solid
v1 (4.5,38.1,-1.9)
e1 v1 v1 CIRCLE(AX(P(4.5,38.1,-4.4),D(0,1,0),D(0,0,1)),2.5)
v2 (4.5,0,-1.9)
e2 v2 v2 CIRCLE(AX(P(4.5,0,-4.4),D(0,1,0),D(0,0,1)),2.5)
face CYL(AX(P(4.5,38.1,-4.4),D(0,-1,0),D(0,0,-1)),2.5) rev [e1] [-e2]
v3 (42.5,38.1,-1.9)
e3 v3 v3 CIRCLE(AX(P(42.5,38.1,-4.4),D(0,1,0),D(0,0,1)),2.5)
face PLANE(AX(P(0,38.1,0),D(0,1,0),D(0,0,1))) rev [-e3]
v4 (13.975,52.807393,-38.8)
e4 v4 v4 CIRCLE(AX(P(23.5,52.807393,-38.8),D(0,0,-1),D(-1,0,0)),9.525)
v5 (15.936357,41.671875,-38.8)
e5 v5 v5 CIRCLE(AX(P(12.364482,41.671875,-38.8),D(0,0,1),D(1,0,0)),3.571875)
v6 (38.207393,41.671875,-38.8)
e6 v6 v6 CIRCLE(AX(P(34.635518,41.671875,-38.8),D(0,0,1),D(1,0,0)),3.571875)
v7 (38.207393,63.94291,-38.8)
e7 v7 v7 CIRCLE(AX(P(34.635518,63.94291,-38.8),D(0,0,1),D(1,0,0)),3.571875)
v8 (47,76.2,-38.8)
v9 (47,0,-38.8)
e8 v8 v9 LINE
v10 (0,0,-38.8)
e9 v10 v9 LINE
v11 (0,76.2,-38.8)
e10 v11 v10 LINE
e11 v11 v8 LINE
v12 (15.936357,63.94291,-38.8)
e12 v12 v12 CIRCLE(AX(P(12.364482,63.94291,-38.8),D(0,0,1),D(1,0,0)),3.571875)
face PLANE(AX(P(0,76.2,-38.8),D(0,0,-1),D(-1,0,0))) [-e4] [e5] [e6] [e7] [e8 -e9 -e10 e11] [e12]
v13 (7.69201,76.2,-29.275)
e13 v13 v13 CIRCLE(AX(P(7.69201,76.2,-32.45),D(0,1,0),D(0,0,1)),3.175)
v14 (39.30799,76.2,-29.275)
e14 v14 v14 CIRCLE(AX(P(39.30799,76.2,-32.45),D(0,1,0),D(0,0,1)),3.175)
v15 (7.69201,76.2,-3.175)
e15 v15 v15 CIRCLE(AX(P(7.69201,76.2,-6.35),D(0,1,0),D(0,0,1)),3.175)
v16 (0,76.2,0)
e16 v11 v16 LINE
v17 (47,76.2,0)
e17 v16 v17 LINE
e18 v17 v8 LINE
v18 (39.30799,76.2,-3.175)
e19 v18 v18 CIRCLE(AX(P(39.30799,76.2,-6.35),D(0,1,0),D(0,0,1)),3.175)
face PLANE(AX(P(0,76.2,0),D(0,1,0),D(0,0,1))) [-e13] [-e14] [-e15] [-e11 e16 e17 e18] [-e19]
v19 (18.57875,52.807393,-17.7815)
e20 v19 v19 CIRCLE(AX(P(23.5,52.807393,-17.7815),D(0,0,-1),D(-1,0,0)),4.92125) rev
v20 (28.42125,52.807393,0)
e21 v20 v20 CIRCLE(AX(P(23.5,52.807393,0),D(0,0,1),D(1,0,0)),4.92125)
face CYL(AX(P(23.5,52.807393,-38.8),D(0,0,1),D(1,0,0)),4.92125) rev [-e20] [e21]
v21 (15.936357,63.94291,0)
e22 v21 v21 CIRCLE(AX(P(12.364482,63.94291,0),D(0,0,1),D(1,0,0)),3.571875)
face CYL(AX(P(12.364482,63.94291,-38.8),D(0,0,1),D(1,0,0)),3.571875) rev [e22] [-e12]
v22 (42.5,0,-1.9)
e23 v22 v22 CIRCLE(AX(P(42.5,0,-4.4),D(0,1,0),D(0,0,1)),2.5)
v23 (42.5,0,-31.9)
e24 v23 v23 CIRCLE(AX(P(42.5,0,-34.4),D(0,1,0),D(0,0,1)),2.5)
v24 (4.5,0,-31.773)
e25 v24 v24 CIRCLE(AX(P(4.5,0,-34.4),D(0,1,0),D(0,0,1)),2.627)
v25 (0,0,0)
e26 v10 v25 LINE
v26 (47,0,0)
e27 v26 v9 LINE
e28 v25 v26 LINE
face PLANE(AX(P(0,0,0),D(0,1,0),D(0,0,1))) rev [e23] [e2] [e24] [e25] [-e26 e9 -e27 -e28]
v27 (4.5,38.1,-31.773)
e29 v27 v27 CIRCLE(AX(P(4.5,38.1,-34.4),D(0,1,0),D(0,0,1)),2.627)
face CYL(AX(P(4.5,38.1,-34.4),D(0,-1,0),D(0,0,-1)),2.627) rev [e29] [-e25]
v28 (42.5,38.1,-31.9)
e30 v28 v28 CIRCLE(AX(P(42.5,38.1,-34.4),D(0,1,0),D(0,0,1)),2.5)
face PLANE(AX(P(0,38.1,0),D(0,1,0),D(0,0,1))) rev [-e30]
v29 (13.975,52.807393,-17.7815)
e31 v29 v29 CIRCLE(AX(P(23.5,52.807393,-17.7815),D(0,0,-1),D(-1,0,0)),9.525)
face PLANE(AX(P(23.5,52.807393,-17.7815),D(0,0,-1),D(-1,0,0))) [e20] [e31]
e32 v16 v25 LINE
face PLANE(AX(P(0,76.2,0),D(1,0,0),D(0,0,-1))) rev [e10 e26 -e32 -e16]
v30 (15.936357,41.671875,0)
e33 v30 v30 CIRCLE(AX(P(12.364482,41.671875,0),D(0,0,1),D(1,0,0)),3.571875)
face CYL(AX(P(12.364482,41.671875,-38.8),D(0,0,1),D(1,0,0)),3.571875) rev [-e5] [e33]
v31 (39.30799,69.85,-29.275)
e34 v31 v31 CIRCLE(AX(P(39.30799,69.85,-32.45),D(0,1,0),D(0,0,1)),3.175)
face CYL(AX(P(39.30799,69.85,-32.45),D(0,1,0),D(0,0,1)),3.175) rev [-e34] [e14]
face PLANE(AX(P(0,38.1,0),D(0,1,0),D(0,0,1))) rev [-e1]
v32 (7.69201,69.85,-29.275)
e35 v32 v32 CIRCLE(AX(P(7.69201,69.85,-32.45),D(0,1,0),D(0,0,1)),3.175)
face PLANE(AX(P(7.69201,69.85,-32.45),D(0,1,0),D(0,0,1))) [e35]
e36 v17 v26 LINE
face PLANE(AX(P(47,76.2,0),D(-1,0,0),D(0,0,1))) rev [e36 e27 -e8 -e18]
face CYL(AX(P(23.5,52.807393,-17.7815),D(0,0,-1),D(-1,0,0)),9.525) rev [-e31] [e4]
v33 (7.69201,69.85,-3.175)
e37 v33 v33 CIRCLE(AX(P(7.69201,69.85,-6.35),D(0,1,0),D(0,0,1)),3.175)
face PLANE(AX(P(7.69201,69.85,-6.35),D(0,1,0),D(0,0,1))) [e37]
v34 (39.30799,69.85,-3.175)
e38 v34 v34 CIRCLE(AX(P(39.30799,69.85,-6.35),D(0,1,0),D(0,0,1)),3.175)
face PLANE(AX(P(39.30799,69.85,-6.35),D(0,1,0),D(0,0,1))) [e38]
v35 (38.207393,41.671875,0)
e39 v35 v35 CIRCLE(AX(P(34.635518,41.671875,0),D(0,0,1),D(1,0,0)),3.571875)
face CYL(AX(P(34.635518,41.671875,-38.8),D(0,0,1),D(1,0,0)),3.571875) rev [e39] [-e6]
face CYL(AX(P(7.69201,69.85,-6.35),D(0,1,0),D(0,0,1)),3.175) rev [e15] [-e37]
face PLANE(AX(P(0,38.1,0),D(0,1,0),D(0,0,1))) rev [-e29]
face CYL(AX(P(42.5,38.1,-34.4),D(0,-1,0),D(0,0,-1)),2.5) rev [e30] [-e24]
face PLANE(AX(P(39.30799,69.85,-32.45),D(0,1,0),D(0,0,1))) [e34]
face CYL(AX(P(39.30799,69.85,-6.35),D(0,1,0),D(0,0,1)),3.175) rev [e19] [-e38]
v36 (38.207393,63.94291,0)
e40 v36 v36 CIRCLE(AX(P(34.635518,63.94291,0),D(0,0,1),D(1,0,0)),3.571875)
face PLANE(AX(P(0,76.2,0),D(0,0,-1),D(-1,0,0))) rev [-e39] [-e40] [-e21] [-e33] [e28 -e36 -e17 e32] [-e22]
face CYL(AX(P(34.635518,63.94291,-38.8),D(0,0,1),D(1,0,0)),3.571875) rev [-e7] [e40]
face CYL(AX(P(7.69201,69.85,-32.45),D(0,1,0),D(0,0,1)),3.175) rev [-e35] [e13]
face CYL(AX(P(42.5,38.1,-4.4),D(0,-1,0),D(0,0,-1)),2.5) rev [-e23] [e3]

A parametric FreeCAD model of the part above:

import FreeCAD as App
import Part
import Sketcher
Q = App.Units.Quantity


def add_polygon(sketch, points):
    """Adds a closed chain of lines whose ends are joined by coincident constraints."""
    first, n = sketch.GeometryCount, len(points)
    for a, b in zip(points, points[1:] + points[:1]):
        sketch.addGeometry(Part.LineSegment(App.Vector(*a, 0), App.Vector(*b, 0)), False)
    for i in range(n):
        sketch.addConstraint(Sketcher.Constraint("Coincident", first + i, 2, first + (i + 1) % n, 1))

doc = App.newDocument("Part")
body = doc.addObject("PartDesign::Body", "Body")

# Sketch on XZ plane
sketch1 = doc.addObject("Sketcher::SketchObject", "Sketch")
body.addObject(sketch1)
sketch1.AttachmentSupport = (doc.XZ_Plane, [""])
sketch1.MapMode = "FlatFace"
add_polygon(sketch1, [(0, -38.8), (0, 0), (47, 0), (47, -38.8)])  # lines 0-3
sketch1.addConstraint(Sketcher.Constraint("Vertical", 0))
sketch1.addConstraint(Sketcher.Constraint("Horizontal", 1))
sketch1.addConstraint(Sketcher.Constraint("Vertical", 2))
sketch1.addConstraint(Sketcher.Constraint("Horizontal", 3))
sketch1.addConstraint(Sketcher.Constraint("Coincident", 0, 2, -1, 1))
sketch1.addConstraint(Sketcher.Constraint("DistanceX", 1, 1, 1, 2, 47.0))
sketch1.addConstraint(Sketcher.Constraint("DistanceY", 0, 1, 0, 2, 38.8))
pad1 = doc.addObject("PartDesign::Pad", "Pad")
body.addObject(pad1)
pad1.Profile = sketch1
pad1.Length = Q("3 in")
pad1.Reversed = True

# Sketch on XY plane
sketch2 = doc.addObject("Sketcher::SketchObject", "Sketch001")
body.addObject(sketch2)
sketch2.AttachmentSupport = (doc.XY_Plane, [""])
sketch2.MapMode = "FlatFace"
sketch2.addGeometry(Part.Circle(App.Vector(12.364482, 63.94291, 0), App.Vector(0, 0, 1), 3.571875), False)
sketch2.addGeometry(Part.Circle(App.Vector(34.635518, 63.94291, 0), App.Vector(0, 0, 1), 3.571875), False)
sketch2.addGeometry(Part.Circle(App.Vector(34.635518, 41.671875, 0), App.Vector(0, 0, 1), 3.571875), False)
sketch2.addGeometry(Part.Circle(App.Vector(23.5, 52.807393, 0), App.Vector(0, 0, 1), 4.92125), False)
sketch2.addGeometry(Part.Circle(App.Vector(12.364482, 41.671875, 0), App.Vector(0, 0, 1), 3.571875), False)
sketch2.addConstraint(Sketcher.Constraint("Equal", 0, 1))
sketch2.addConstraint(Sketcher.Constraint("Equal", 1, 2))
sketch2.addConstraint(Sketcher.Constraint("Equal", 2, 4))
sketch2.addConstraint(Sketcher.Constraint("Horizontal", 0, 3, 1, 3))
sketch2.addConstraint(Sketcher.Constraint("Horizontal", 2, 3, 4, 3))
sketch2.addConstraint(Sketcher.Constraint("Vertical", 1, 3, 2, 3))
sketch2.addConstraint(Sketcher.Constraint("Vertical", 0, 3, 4, 3))
sketch2.addConstraint(Sketcher.Constraint("Diameter", 0, Q("0.28125 in")))
sketch2.addConstraint(Sketcher.Constraint("Diameter", 3, Q("0.3875 in")))
sketch2.addConstraint(Sketcher.Constraint("DistanceY", -1, 1, 2, 3, Q("1.640625 in")))
sketch2.addConstraint(Sketcher.Constraint("DistanceX", -1, 1, 3, 3, 23.5))
sketch2.addConstraint(Sketcher.Constraint("DistanceY", -1, 1, 0, 3, 63.94291))
sketch2.addConstraint(Sketcher.Constraint("DistanceX", -1, 1, 0, 3, 12.364482))
sketch2.addConstraint(Sketcher.Constraint("DistanceX", -1, 1, 1, 3, 34.635518))
sketch2.addConstraint(Sketcher.Constraint("DistanceY", -1, 1, 3, 3, 52.807393))
pocket1 = doc.addObject("PartDesign::Pocket", "Pocket")
body.addObject(pocket1)
pocket1.Profile = sketch2
pocket1.Type = "ThroughAll"

# Sketch on XZ plane
sketch3 = doc.addObject("Sketcher::SketchObject", "Sketch002")
body.addObject(sketch3)
sketch3.AttachmentSupport = (doc.XZ_Plane, [""])
sketch3.MapMode = "FlatFace"
sketch3.addGeometry(Part.Circle(App.Vector(4.5, -34.4, 0), App.Vector(0, 0, 1), 2.627), False)
sketch3.addGeometry(Part.Circle(App.Vector(4.5, -4.4, 0), App.Vector(0, 0, 1), 2.5), False)
sketch3.addGeometry(Part.Circle(App.Vector(42.5, -4.4, 0), App.Vector(0, 0, 1), 2.5), False)
sketch3.addGeometry(Part.Circle(App.Vector(42.5, -34.4, 0), App.Vector(0, 0, 1), 2.5), False)
sketch3.addConstraint(Sketcher.Constraint("Equal", 1, 2))
sketch3.addConstraint(Sketcher.Constraint("Equal", 2, 3))
sketch3.addConstraint(Sketcher.Constraint("Horizontal", 1, 3, 2, 3))
sketch3.addConstraint(Sketcher.Constraint("Horizontal", 0, 3, 3, 3))
sketch3.addConstraint(Sketcher.Constraint("Vertical", 0, 3, 1, 3))
sketch3.addConstraint(Sketcher.Constraint("Vertical", 2, 3, 3, 3))
sketch3.addConstraint(Sketcher.Constraint("Diameter", 0, 5.254))
sketch3.addConstraint(Sketcher.Constraint("Diameter", 1, 5.0))
sketch3.addConstraint(Sketcher.Constraint("DistanceX", -1, 1, 0, 3, 4.5))
sketch3.addConstraint(Sketcher.Constraint("DistanceY", 0, 3, -1, 1, 34.4))
sketch3.addConstraint(Sketcher.Constraint("DistanceY", 1, 3, -1, 1, 4.4))
sketch3.addConstraint(Sketcher.Constraint("DistanceX", -1, 1, 2, 3, 42.5))
pocket2 = doc.addObject("PartDesign::Pocket", "Pocket001")
body.addObject(pocket2)
pocket2.Profile = sketch3
pocket2.Length = Q("1.5 in")

# Sketch on XY plane
sketch4 = doc.addObject("Sketcher::SketchObject", "Sketch003")
body.addObject(sketch4)
sketch4.AttachmentSupport = (doc.XY_Plane, [""])
sketch4.MapMode = "FlatFace"
sketch4.AttachmentOffset = App.Placement(App.Vector(0, 0, -38.8), App.Rotation())
sketch4.addGeometry(Part.Circle(App.Vector(23.5, 52.807393, 0), App.Vector(0, 0, 1), 9.525), False)
sketch4.addConstraint(Sketcher.Constraint("Diameter", 0, Q("0.75 in")))
sketch4.addConstraint(Sketcher.Constraint("DistanceX", -1, 1, 0, 3, 23.5))
sketch4.addConstraint(Sketcher.Constraint("DistanceY", -1, 1, 0, 3, 52.807393))
pocket3 = doc.addObject("PartDesign::Pocket", "Pocket002")
body.addObject(pocket3)
pocket3.Profile = sketch4
pocket3.Length = Q("0.8275 in")
pocket3.Reversed = True

# Sketch on XZ plane
sketch5 = doc.addObject("Sketcher::SketchObject", "Sketch004")
body.addObject(sketch5)
sketch5.AttachmentSupport = (doc.XZ_Plane, [""])
sketch5.MapMode = "FlatFace"
sketch5.AttachmentOffset = App.Placement(App.Vector(0, 0, -3 * 25.4), App.Rotation())
sketch5.addGeometry(Part.Circle(App.Vector(7.69201, -32.45, 0), App.Vector(0, 0, 1), 3.175), False)
sketch5.addGeometry(Part.Circle(App.Vector(39.30799, -32.45, 0), App.Vector(0, 0, 1), 3.175), False)
sketch5.addGeometry(Part.Circle(App.Vector(39.30799, -6.35, 0), App.Vector(0, 0, 1), 3.175), False)
sketch5.addGeometry(Part.Circle(App.Vector(7.69201, -6.35, 0), App.Vector(0, 0, 1), 3.175), False)
sketch5.addConstraint(Sketcher.Constraint("Equal", 0, 1))
sketch5.addConstraint(Sketcher.Constraint("Equal", 1, 2))
sketch5.addConstraint(Sketcher.Constraint("Equal", 2, 3))
sketch5.addConstraint(Sketcher.Constraint("Horizontal", 0, 3, 1, 3))
sketch5.addConstraint(Sketcher.Constraint("Horizontal", 2, 3, 3, 3))
sketch5.addConstraint(Sketcher.Constraint("Vertical", 1, 3, 2, 3))
sketch5.addConstraint(Sketcher.Constraint("Vertical", 0, 3, 3, 3))
sketch5.addConstraint(Sketcher.Constraint("Diameter", 0, Q("0.25 in")))
sketch5.addConstraint(Sketcher.Constraint("DistanceY", 2, 3, -1, 1, Q("0.25 in")))
sketch5.addConstraint(Sketcher.Constraint("DistanceY", 0, 3, -1, 1, 32.45))
sketch5.addConstraint(Sketcher.Constraint("DistanceX", -1, 1, 0, 3, 7.69201))
sketch5.addConstraint(Sketcher.Constraint("DistanceX", -1, 1, 1, 3, 39.30799))
pocket4 = doc.addObject("PartDesign::Pocket", "Pocket003")
body.addObject(pocket4)
pocket4.Profile = sketch5
pocket4.Length = Q("0.25 in")
pocket4.Reversed = True

doc.recompute()
